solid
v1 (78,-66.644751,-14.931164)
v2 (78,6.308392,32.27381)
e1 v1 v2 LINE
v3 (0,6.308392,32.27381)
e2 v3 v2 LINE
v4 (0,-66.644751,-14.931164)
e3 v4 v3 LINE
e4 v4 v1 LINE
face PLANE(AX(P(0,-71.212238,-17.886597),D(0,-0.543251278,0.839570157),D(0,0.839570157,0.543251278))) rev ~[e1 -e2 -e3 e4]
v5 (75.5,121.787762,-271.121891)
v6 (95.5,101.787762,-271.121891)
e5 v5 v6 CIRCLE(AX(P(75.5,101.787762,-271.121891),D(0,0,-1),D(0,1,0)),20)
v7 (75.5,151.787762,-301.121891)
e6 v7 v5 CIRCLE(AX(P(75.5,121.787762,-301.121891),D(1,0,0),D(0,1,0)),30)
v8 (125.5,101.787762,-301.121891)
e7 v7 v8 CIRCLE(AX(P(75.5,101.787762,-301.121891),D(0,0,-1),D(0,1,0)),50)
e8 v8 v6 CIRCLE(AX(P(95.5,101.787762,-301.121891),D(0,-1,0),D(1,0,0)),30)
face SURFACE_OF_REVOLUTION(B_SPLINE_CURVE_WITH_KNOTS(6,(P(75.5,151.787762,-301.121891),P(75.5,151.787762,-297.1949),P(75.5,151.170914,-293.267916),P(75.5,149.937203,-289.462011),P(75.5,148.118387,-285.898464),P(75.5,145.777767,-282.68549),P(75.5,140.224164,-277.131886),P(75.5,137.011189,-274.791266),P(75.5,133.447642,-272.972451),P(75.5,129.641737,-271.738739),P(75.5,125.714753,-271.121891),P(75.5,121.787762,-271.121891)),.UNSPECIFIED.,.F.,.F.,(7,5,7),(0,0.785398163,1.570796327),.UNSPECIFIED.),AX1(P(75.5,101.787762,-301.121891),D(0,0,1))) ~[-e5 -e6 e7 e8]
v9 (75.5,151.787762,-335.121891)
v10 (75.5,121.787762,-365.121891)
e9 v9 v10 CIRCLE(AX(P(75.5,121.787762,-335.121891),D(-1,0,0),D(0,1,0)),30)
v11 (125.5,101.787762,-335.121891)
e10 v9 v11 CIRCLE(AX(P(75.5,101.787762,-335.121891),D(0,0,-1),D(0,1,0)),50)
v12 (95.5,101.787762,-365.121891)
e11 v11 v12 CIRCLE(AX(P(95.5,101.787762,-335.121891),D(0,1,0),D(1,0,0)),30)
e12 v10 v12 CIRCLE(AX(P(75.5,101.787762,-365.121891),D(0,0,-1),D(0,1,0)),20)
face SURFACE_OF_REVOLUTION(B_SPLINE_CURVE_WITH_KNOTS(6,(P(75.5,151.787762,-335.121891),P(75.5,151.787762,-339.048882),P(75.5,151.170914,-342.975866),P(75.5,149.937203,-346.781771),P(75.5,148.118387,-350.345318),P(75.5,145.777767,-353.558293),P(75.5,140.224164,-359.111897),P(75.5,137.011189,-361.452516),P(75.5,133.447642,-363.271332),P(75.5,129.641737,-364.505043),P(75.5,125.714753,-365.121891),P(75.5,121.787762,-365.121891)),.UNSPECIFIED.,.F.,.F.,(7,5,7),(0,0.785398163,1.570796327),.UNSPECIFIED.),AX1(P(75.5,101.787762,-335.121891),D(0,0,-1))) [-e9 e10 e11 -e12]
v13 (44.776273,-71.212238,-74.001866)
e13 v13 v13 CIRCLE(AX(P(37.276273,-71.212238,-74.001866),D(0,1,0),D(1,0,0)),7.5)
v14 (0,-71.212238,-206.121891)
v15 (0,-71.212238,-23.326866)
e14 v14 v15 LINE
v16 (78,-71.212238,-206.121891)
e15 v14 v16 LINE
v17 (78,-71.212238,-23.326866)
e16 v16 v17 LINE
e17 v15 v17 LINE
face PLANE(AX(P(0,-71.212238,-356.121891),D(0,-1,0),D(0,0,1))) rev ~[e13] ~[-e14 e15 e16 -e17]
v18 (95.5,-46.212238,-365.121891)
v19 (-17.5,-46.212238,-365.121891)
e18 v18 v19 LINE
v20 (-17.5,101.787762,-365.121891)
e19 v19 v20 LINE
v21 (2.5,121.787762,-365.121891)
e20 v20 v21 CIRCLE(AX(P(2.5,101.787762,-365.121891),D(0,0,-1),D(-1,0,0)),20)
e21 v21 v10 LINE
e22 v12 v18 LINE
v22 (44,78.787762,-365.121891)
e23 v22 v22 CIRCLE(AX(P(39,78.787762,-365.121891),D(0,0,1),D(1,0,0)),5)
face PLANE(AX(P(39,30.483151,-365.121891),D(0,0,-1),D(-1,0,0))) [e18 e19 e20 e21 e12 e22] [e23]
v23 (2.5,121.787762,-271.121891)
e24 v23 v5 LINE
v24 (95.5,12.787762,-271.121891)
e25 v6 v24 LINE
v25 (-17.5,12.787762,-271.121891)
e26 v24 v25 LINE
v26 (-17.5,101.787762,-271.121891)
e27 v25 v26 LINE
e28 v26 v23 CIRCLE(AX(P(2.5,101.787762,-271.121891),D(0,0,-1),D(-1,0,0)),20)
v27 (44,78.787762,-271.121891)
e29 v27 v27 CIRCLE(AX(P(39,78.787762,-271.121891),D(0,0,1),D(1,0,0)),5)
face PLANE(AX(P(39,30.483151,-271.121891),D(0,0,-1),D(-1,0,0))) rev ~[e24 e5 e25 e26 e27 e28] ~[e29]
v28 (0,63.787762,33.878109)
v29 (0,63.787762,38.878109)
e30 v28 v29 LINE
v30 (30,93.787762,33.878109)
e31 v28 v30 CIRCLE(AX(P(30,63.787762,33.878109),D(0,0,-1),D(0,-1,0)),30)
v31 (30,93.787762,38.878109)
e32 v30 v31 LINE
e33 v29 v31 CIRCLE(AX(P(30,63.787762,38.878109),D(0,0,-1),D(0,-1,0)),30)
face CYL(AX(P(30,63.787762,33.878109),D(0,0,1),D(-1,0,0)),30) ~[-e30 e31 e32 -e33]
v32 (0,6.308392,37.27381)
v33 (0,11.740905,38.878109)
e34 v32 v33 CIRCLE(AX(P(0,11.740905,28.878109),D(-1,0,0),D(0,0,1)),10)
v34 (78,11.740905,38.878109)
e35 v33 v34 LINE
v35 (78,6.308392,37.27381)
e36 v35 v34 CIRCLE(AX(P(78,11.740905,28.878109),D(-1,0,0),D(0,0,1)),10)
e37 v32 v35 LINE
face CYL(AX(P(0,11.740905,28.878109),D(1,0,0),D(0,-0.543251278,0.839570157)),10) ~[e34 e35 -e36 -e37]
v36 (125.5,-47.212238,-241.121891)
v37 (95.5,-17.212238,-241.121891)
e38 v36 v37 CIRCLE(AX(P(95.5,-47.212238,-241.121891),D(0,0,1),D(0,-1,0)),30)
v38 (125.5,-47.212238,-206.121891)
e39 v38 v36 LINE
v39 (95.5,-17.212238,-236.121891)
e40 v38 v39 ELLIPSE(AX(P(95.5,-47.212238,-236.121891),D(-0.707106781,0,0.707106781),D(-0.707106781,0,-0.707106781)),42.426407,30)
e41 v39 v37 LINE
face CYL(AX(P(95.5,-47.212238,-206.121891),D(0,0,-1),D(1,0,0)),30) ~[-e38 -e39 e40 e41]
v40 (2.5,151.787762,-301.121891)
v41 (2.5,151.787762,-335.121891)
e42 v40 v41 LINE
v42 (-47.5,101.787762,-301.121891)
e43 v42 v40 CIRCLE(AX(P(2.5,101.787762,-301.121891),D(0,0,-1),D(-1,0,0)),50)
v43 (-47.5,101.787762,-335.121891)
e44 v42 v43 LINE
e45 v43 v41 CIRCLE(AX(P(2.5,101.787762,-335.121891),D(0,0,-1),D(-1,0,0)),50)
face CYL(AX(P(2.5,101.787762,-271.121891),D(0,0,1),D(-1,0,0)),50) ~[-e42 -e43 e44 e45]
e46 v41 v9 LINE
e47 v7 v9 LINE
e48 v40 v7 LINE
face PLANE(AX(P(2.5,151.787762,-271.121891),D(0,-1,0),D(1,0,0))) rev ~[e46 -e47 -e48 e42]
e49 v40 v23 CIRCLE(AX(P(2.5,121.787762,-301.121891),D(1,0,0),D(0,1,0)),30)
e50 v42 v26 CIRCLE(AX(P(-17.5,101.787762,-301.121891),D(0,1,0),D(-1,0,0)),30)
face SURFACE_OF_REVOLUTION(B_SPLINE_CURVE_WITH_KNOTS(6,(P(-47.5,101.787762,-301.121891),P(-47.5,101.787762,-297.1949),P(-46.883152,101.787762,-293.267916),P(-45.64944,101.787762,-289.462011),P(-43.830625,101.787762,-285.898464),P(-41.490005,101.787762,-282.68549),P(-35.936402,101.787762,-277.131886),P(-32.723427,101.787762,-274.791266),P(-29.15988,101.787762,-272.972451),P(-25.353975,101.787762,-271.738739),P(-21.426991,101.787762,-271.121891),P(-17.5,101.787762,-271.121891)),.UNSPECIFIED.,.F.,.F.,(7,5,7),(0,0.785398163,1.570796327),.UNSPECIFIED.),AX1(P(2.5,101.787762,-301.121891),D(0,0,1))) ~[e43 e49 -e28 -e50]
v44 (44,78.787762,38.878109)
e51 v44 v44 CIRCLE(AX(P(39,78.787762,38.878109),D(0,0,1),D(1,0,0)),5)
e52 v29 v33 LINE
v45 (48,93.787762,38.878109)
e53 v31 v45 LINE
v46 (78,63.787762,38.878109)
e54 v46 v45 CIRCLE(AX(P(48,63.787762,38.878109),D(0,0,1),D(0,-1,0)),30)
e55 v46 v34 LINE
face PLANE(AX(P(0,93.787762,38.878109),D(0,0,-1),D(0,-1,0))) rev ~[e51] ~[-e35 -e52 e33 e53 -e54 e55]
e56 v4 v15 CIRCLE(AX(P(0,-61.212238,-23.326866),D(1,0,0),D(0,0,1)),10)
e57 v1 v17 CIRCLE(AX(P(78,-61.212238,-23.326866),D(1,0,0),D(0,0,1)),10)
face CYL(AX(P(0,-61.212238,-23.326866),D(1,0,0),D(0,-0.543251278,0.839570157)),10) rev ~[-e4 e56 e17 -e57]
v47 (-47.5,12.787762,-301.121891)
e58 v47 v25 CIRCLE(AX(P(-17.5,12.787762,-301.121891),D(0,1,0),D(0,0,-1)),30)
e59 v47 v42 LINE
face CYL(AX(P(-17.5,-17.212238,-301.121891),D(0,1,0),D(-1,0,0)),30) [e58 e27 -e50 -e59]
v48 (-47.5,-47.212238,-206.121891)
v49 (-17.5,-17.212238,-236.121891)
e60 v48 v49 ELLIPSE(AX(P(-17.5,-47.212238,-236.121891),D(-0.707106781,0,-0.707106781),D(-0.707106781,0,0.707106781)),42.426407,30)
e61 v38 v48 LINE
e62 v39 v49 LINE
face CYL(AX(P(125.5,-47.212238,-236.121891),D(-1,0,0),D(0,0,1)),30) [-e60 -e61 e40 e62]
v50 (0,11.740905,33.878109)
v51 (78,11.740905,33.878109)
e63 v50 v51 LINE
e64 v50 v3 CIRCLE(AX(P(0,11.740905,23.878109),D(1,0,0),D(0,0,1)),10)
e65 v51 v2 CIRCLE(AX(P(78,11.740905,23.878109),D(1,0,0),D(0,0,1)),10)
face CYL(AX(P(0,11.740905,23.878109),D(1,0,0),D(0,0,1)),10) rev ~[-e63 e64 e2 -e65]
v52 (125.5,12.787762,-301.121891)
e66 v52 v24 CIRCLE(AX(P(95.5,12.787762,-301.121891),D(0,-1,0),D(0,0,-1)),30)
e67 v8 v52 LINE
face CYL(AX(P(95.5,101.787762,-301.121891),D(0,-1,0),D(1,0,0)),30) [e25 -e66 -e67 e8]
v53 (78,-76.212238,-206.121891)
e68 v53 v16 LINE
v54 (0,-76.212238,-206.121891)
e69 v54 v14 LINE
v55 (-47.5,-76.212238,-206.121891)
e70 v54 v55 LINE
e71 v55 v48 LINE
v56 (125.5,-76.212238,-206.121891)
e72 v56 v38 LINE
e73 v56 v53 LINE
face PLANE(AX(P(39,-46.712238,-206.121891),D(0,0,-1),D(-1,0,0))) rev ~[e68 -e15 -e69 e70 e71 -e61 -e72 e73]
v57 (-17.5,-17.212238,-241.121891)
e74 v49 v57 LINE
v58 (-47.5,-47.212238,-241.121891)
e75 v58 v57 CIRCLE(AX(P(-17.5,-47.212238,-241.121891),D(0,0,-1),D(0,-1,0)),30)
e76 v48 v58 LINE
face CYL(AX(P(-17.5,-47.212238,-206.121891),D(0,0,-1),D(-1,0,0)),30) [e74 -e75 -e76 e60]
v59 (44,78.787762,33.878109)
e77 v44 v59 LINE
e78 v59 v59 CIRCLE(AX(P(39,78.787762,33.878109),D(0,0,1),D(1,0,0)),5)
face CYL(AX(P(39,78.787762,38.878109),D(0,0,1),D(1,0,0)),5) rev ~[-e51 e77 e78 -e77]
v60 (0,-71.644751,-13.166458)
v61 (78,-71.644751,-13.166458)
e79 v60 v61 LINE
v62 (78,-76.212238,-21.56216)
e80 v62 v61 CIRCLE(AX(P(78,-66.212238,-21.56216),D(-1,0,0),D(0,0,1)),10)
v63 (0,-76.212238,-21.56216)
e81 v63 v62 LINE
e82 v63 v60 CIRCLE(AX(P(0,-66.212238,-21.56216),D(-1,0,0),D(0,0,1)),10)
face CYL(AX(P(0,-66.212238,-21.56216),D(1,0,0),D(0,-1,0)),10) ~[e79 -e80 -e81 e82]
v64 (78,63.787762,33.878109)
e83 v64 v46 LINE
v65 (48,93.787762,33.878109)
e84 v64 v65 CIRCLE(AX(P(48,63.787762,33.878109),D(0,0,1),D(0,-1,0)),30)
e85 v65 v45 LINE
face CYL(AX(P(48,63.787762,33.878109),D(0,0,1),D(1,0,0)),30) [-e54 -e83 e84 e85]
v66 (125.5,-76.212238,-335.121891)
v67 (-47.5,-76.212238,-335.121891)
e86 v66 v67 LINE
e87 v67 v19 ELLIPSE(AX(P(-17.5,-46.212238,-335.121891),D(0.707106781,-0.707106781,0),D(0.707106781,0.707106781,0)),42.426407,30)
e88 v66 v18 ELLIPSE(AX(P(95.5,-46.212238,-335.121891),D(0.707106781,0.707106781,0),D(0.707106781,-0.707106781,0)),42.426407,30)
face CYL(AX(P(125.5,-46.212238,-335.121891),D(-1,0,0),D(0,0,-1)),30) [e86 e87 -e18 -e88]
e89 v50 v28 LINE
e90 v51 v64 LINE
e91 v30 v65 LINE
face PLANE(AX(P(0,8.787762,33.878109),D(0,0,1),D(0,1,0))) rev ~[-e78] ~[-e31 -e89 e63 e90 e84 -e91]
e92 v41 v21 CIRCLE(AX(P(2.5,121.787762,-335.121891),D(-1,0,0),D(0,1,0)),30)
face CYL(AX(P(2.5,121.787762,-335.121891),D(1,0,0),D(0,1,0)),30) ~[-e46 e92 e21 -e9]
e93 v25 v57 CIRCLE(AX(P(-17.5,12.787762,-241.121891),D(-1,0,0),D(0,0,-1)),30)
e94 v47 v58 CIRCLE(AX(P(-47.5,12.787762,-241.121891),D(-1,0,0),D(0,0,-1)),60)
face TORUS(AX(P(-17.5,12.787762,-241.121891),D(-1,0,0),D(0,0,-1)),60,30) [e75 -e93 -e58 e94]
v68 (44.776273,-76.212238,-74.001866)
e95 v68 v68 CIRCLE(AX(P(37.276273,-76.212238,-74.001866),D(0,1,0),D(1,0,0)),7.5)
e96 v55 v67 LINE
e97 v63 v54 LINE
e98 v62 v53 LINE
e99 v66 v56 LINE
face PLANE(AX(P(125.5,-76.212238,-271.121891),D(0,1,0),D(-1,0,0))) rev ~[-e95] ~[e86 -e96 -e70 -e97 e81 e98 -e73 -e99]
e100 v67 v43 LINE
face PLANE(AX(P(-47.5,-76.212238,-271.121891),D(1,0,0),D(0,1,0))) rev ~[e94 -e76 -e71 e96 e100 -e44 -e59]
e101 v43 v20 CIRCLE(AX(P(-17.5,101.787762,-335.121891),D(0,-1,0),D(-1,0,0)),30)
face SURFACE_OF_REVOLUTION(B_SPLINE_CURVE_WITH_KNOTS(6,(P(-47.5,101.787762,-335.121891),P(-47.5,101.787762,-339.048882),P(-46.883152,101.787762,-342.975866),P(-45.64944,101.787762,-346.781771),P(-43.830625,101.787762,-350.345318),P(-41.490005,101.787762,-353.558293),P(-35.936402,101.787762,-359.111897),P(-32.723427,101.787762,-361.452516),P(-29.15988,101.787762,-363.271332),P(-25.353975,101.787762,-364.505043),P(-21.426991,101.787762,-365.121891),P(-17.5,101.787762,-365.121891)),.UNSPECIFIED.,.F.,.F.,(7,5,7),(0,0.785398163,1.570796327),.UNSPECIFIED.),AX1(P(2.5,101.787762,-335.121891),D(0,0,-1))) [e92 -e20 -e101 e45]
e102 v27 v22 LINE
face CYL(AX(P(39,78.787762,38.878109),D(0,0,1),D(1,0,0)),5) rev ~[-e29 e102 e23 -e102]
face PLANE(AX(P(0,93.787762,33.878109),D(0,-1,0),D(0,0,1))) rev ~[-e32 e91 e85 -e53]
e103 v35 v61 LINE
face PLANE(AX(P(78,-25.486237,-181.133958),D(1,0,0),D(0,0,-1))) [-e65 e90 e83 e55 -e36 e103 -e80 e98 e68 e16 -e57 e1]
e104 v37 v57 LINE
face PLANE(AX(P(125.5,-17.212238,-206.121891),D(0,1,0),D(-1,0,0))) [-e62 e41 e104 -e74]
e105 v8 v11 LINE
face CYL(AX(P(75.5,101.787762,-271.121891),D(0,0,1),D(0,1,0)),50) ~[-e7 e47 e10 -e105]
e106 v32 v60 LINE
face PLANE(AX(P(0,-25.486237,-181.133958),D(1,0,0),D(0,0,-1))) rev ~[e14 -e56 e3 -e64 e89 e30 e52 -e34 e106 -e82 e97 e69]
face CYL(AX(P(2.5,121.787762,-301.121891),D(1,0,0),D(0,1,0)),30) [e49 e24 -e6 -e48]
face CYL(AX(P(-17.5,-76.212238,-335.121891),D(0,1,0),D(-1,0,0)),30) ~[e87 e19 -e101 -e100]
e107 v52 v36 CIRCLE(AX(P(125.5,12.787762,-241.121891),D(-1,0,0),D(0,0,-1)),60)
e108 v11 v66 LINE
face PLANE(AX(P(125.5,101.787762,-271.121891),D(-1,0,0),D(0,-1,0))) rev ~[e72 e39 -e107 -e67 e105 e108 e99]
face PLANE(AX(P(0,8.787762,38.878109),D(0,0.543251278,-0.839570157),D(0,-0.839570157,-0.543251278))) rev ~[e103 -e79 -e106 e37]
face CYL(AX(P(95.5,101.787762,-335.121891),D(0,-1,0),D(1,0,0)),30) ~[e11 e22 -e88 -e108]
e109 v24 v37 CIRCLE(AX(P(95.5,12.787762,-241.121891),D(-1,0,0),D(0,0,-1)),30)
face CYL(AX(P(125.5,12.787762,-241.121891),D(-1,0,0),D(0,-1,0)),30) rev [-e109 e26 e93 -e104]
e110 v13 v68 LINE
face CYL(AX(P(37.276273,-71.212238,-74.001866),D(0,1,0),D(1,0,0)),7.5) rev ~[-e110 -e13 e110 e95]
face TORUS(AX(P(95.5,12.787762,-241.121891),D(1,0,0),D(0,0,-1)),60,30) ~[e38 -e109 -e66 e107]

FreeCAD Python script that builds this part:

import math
import FreeCAD as App
import Part
import Sketcher

V = App.Vector


def edges_at(feature, points):
    """Names of the edges that pass closest to the given points."""
    edges = feature.Shape.Edges
    near = lambda p: min(range(len(edges)), key=lambda i: edges[i].distToShape(Part.Vertex(*p))[0])
    return sorted({f"Edge{near(p) + 1}" for p in points})

doc = App.newDocument("Part")
body = doc.addObject("PartDesign::Body", "Body")

sketch1 = body.newObject("Sketcher::SketchObject", "Sketch")
sketch1.AttachmentSupport = (doc.getObject("YZ_Plane"), [""])
sketch1.MapMode = "FlatFace"
sketch1.addGeometry([
    Part.LineSegment(V(94, 39, 0), V(9, 39, 0)),
    Part.LineSegment(V(9, 39, 0), V(-76, -16, 0)),
    Part.LineSegment(V(-76, -16, 0), V(-76, -361, 0)),
    Part.LineSegment(V(-76, -361, 0), V(124, -361, 0)),
    Part.LineSegment(V(124, -361, 0), V(124, -356, 0)),
    Part.LineSegment(V(124, -356, 0), V(-71, -356, 0)),
    Part.LineSegment(V(-71, -356, 0), V(-71, -18, 0)),
    Part.LineSegment(V(-71, -18, 0), V(9, 34, 0)),
    Part.LineSegment(V(9, 34, 0), V(94, 34, 0)),
    Part.LineSegment(V(94, 34, 0), V(94, 39, 0)),
], False)
sketch1.addConstraint([
    Sketcher.Constraint("Coincident", 0, 2, 1, 1),
    Sketcher.Constraint("Coincident", 1, 2, 2, 1),
    Sketcher.Constraint("Coincident", 2, 2, 3, 1),
    Sketcher.Constraint("Coincident", 3, 2, 4, 1),
    Sketcher.Constraint("Coincident", 4, 2, 5, 1),
    Sketcher.Constraint("Coincident", 5, 2, 6, 1),
    Sketcher.Constraint("Coincident", 6, 2, 7, 1),
    Sketcher.Constraint("Coincident", 7, 2, 8, 1),
    Sketcher.Constraint("Coincident", 8, 2, 9, 1),
    Sketcher.Constraint("Coincident", 9, 2, 0, 1),
    Sketcher.Constraint("Horizontal", 0),
    Sketcher.Constraint("Vertical", 2),
    Sketcher.Constraint("Horizontal", 3),
    Sketcher.Constraint("Vertical", 4),
    Sketcher.Constraint("Horizontal", 5),
    Sketcher.Constraint("Vertical", 6),
    Sketcher.Constraint("Horizontal", 8),
    Sketcher.Constraint("Vertical", 9),
    Sketcher.Constraint("Parallel", 1, 7),
    Sketcher.Constraint("Vertical", 0, 2, 7, 2),
    Sketcher.Constraint("Equal", 4, 9),
    Sketcher.Constraint("DistanceX", 0, 2, 0, 1, 85.0),
    Sketcher.Constraint("DistanceX", 3, 1, 3, 2, 200.0),
    Sketcher.Constraint("DistanceX", 5, 2, 5, 1, 195.0),
    Sketcher.Constraint("DistanceY", 2, 2, 2, 1, 345.0),
    Sketcher.Constraint("DistanceY", 4, 1, 4, 2, 5.0),
    Sketcher.Constraint("DistanceX", 1, 2, 0, 2, 85.0),
    Sketcher.Constraint("DistanceY", 1, 2, 0, 2, 55.0),
    Sketcher.Constraint("DistanceY", -1, 1, 0, 2, 38.878109),
    Sketcher.Constraint("DistanceX", -1, 1, 0, 2, 8.787762),
])
pad1 = body.newObject("PartDesign::Pad", "Pad")
pad1.Profile = sketch1
pad1.Length = 78
doc.recompute()

fillet = body.newObject("PartDesign::Fillet", "Fillet")
fillet.Base = (pad1, edges_at(pad1, [(39, -71.212, -356.122), (39, -76.212, -361.122)]))
fillet.Radius = 20
doc.recompute()

fillet2 = body.newObject("PartDesign::Fillet", "Fillet001")
fillet2.Base = (fillet, edges_at(fillet, [
    (39, 8.788, 33.878),
    (39, -71.212, -17.887),
    (39, -76.212, -16.122),
    (39, 8.788, 38.878),
]))
fillet2.Radius = 10

sketch2 = body.newObject("Sketcher::SketchObject", "Sketch001")
sketch2.AttachmentSupport = (doc.getObject("XZ_Plane"), [""])
sketch2.MapMode = "FlatFace"
sketch2.AttachmentOffset = App.Placement(V(0, 0, 71.212238), App.Rotation())
sketch2.addGeometry(Part.Circle(V(37, -74, 0), V(0, 0, 1), 8), False)
sketch2.addConstraint([
    Sketcher.Constraint("Diameter", 0, 15.0),
    Sketcher.Constraint("DistanceX", -1, 1, 0, 3, 37.276273),
    Sketcher.Constraint("DistanceY", 0, 3, -1, 1, 74.001866),
])
pocket1 = body.newObject("PartDesign::Pocket", "Pocket")
pocket1.Profile = sketch2
pocket1.Type = "ThroughAll"
pocket1.Reversed = True
doc.recompute()

fillet3 = body.newObject("PartDesign::Fillet", "Fillet002")
fillet3.Base = (pocket1, edges_at(pocket1, [(0, 93.788, 36.378), (78, 93.788, 36.378)]))
fillet3.Radius = 30

sketch3 = body.newObject("Sketcher::SketchObject", "Sketch002")
sketch3.AttachmentSupport = (doc.getObject("YZ_Plane"), [""])
sketch3.MapMode = "FlatFace"
sketch3.AttachmentOffset = App.Placement(V(0, 0, 78), App.Rotation())
sketch3.addGeometry([
    Part.LineSegment(V(176, -206, 0), V(-134, -206, 0)),
    Part.LineSegment(V(-134, -206, 0), V(-134, -483, 0)),
    Part.LineSegment(V(-134, -483, 0), V(176, -483, 0)),
    Part.LineSegment(V(176, -483, 0), V(176, -206, 0)),
], False)
sketch3.addConstraint([
    Sketcher.Constraint("Coincident", 0, 2, 1, 1),
    Sketcher.Constraint("Coincident", 1, 2, 2, 1),
    Sketcher.Constraint("Coincident", 2, 2, 3, 1),
    Sketcher.Constraint("Coincident", 3, 2, 0, 1),
    Sketcher.Constraint("Horizontal", 0),
    Sketcher.Constraint("Vertical", 1),
    Sketcher.Constraint("Horizontal", 2),
    Sketcher.Constraint("Vertical", 3),
    Sketcher.Constraint("DistanceY", 1, 2, 1, 1, 276.639181),
    Sketcher.Constraint("DistanceX", 0, 2, 0, 1, 310.570394),
    Sketcher.Constraint("DistanceY", 0, 2, -1, 1, 206.121891),
    Sketcher.Constraint("DistanceX", -1, 1, 2, 2, 176.478219),
])
pocket2 = body.newObject("PartDesign::Pocket", "Pocket001")
pocket2.Profile = sketch3
pocket2.Type = "ThroughAll"

sketch4 = body.newObject("Sketcher::SketchObject", "Sketch003")
sketch4.AttachmentSupport = (doc.getObject("XY_Plane"), [""])
sketch4.MapMode = "FlatFace"
sketch4.AttachmentOffset = App.Placement(V(0, 0, -206.121891), App.Rotation())
sketch4.addGeometry([
    Part.LineSegment(V(126, -17, 0), V(126, -76, 0)),
    Part.LineSegment(V(126, -76, 0), V(-48, -76, 0)),
    Part.LineSegment(V(-48, -76, 0), V(-48, -17, 0)),
    Part.LineSegment(V(-48, -17, 0), V(126, -17, 0)),
], False)
sketch4.addConstraint([
    Sketcher.Constraint("Coincident", 0, 2, 1, 1),
    Sketcher.Constraint("Coincident", 1, 2, 2, 1),
    Sketcher.Constraint("Coincident", 2, 2, 3, 1),
    Sketcher.Constraint("Coincident", 3, 2, 0, 1),
    Sketcher.Constraint("Vertical", 0),
    Sketcher.Constraint("Horizontal", 1),
    Sketcher.Constraint("Vertical", 2),
    Sketcher.Constraint("Horizontal", 3),
    Sketcher.Constraint("DistanceX", 1, 2, 1, 1, 173.0),
    Sketcher.Constraint("DistanceY", 0, 2, 0, 1, 59.0),
    Sketcher.Constraint("DistanceX", -1, 1, 0, 2, 125.5),
    Sketcher.Constraint("DistanceY", 0, 2, -1, 1, 76.212238),
])
pad2 = body.newObject("PartDesign::Pad", "Pad001")
pad2.Profile = sketch4
pad2.Length = 65
pad2.Reversed = True

sketch5 = body.newObject("Sketcher::SketchObject", "Sketch004")
sketch5.AttachmentSupport = (doc.getObject("XY_Plane"), [""])
sketch5.MapMode = "FlatFace"
sketch5.AttachmentOffset = App.Placement(V(0, 0, -271.121891), App.Rotation())
sketch5.addGeometry([
    Part.LineSegment(V(126, -76, 0), V(-48, -76, 0)),
    Part.LineSegment(V(-48, -76, 0), V(-48, 102, 0)),
    Part.ArcOfCircle(Part.Circle(V(2, 102, 0), V(0, 0, 1), 50), math.radians(90), math.radians(180)),
    Part.LineSegment(V(2, 152, 0), V(76, 152, 0)),
    Part.ArcOfCircle(Part.Circle(V(76, 102, 0), V(0, 0, 1), 50), math.radians(0), math.radians(90)),
    Part.LineSegment(V(126, 102, 0), V(126, -76, 0)),
], False)
sketch5.addConstraint([
    Sketcher.Constraint("Coincident", 0, 2, 1, 1),
    Sketcher.Constraint("Tangent", 1, 2, 2, 2),
    Sketcher.Constraint("Tangent", 2, 1, 3, 1),
    Sketcher.Constraint("Tangent", 3, 2, 4, 2),
    Sketcher.Constraint("Tangent", 4, 1, 5, 1),
    Sketcher.Constraint("Coincident", 5, 2, 0, 1),
    Sketcher.Constraint("Horizontal", 0),
    Sketcher.Constraint("Vertical", 1),
    Sketcher.Constraint("Horizontal", 3),
    Sketcher.Constraint("Vertical", 5),
    Sketcher.Constraint("Equal", 2, 4),
    Sketcher.Constraint("Radius", 2, 50.0),
    Sketcher.Constraint("DistanceX", 0, 2, 0, 1, 173.0),
    Sketcher.Constraint("DistanceY", 1, 1, 1, 2, 178.0),
    Sketcher.Constraint("DistanceX", -1, 1, 2, 3, 2.5),
    Sketcher.Constraint("DistanceY", -1, 1, 2, 3, 101.787762),
])
pad3 = body.newObject("PartDesign::Pad", "Pad002")
pad3.Profile = sketch5
pad3.Length = 94
pad3.Reversed = True

sketch6 = body.newObject("Sketcher::SketchObject", "Sketch005")
sketch6.AttachmentSupport = (doc.getObject("XY_Plane"), [""])
sketch6.MapMode = "FlatFace"
sketch6.AttachmentOffset = App.Placement(V(0, 0, 38.878109), App.Rotation())
sketch6.addGeometry(Part.Circle(V(39, 79, 0), V(0, 0, 1), 5), False)
sketch6.addConstraint([
    Sketcher.Constraint("Diameter", 0, 10.0),
    Sketcher.Constraint("DistanceX", -1, 1, 0, 3, 39.0),
    Sketcher.Constraint("DistanceY", -1, 1, 0, 3, 78.787762),
])
pocket3 = body.newObject("PartDesign::Pocket", "Pocket002")
pocket3.Profile = sketch6
pocket3.Type = "ThroughAll"
doc.recompute()

fillet4 = body.newObject("PartDesign::Fillet", "Fillet003")
fillet4.Base = (pocket3, edges_at(pocket3, [
    (125.5, -17.212, -238.622),
    (39, -17.212, -206.122),
    (-47.5, -17.212, -238.622),
    (39, -17.212, -271.122),
    (125.5, 42.288, -271.122),
    (-47.5, 42.288, -271.122),
    (-32.855, 137.143, -271.122),
    (39, 151.788, -271.122),
    (110.855, 137.143, -271.122),
]))
fillet4.Radius = 30
doc.recompute()

fillet5 = body.newObject("PartDesign::Fillet", "Fillet004")
fillet5.Base = (fillet4, edges_at(fillet4, [
    (125.5, 12.788, -365.122),
    (39, -76.212, -365.122),
    (-47.5, 12.788, -365.122),
    (-32.855, 137.143, -365.122),
    (39, 151.788, -365.122),
    (110.855, 137.143, -365.122),
]))
fillet5.Radius = 30

doc.recompute()
